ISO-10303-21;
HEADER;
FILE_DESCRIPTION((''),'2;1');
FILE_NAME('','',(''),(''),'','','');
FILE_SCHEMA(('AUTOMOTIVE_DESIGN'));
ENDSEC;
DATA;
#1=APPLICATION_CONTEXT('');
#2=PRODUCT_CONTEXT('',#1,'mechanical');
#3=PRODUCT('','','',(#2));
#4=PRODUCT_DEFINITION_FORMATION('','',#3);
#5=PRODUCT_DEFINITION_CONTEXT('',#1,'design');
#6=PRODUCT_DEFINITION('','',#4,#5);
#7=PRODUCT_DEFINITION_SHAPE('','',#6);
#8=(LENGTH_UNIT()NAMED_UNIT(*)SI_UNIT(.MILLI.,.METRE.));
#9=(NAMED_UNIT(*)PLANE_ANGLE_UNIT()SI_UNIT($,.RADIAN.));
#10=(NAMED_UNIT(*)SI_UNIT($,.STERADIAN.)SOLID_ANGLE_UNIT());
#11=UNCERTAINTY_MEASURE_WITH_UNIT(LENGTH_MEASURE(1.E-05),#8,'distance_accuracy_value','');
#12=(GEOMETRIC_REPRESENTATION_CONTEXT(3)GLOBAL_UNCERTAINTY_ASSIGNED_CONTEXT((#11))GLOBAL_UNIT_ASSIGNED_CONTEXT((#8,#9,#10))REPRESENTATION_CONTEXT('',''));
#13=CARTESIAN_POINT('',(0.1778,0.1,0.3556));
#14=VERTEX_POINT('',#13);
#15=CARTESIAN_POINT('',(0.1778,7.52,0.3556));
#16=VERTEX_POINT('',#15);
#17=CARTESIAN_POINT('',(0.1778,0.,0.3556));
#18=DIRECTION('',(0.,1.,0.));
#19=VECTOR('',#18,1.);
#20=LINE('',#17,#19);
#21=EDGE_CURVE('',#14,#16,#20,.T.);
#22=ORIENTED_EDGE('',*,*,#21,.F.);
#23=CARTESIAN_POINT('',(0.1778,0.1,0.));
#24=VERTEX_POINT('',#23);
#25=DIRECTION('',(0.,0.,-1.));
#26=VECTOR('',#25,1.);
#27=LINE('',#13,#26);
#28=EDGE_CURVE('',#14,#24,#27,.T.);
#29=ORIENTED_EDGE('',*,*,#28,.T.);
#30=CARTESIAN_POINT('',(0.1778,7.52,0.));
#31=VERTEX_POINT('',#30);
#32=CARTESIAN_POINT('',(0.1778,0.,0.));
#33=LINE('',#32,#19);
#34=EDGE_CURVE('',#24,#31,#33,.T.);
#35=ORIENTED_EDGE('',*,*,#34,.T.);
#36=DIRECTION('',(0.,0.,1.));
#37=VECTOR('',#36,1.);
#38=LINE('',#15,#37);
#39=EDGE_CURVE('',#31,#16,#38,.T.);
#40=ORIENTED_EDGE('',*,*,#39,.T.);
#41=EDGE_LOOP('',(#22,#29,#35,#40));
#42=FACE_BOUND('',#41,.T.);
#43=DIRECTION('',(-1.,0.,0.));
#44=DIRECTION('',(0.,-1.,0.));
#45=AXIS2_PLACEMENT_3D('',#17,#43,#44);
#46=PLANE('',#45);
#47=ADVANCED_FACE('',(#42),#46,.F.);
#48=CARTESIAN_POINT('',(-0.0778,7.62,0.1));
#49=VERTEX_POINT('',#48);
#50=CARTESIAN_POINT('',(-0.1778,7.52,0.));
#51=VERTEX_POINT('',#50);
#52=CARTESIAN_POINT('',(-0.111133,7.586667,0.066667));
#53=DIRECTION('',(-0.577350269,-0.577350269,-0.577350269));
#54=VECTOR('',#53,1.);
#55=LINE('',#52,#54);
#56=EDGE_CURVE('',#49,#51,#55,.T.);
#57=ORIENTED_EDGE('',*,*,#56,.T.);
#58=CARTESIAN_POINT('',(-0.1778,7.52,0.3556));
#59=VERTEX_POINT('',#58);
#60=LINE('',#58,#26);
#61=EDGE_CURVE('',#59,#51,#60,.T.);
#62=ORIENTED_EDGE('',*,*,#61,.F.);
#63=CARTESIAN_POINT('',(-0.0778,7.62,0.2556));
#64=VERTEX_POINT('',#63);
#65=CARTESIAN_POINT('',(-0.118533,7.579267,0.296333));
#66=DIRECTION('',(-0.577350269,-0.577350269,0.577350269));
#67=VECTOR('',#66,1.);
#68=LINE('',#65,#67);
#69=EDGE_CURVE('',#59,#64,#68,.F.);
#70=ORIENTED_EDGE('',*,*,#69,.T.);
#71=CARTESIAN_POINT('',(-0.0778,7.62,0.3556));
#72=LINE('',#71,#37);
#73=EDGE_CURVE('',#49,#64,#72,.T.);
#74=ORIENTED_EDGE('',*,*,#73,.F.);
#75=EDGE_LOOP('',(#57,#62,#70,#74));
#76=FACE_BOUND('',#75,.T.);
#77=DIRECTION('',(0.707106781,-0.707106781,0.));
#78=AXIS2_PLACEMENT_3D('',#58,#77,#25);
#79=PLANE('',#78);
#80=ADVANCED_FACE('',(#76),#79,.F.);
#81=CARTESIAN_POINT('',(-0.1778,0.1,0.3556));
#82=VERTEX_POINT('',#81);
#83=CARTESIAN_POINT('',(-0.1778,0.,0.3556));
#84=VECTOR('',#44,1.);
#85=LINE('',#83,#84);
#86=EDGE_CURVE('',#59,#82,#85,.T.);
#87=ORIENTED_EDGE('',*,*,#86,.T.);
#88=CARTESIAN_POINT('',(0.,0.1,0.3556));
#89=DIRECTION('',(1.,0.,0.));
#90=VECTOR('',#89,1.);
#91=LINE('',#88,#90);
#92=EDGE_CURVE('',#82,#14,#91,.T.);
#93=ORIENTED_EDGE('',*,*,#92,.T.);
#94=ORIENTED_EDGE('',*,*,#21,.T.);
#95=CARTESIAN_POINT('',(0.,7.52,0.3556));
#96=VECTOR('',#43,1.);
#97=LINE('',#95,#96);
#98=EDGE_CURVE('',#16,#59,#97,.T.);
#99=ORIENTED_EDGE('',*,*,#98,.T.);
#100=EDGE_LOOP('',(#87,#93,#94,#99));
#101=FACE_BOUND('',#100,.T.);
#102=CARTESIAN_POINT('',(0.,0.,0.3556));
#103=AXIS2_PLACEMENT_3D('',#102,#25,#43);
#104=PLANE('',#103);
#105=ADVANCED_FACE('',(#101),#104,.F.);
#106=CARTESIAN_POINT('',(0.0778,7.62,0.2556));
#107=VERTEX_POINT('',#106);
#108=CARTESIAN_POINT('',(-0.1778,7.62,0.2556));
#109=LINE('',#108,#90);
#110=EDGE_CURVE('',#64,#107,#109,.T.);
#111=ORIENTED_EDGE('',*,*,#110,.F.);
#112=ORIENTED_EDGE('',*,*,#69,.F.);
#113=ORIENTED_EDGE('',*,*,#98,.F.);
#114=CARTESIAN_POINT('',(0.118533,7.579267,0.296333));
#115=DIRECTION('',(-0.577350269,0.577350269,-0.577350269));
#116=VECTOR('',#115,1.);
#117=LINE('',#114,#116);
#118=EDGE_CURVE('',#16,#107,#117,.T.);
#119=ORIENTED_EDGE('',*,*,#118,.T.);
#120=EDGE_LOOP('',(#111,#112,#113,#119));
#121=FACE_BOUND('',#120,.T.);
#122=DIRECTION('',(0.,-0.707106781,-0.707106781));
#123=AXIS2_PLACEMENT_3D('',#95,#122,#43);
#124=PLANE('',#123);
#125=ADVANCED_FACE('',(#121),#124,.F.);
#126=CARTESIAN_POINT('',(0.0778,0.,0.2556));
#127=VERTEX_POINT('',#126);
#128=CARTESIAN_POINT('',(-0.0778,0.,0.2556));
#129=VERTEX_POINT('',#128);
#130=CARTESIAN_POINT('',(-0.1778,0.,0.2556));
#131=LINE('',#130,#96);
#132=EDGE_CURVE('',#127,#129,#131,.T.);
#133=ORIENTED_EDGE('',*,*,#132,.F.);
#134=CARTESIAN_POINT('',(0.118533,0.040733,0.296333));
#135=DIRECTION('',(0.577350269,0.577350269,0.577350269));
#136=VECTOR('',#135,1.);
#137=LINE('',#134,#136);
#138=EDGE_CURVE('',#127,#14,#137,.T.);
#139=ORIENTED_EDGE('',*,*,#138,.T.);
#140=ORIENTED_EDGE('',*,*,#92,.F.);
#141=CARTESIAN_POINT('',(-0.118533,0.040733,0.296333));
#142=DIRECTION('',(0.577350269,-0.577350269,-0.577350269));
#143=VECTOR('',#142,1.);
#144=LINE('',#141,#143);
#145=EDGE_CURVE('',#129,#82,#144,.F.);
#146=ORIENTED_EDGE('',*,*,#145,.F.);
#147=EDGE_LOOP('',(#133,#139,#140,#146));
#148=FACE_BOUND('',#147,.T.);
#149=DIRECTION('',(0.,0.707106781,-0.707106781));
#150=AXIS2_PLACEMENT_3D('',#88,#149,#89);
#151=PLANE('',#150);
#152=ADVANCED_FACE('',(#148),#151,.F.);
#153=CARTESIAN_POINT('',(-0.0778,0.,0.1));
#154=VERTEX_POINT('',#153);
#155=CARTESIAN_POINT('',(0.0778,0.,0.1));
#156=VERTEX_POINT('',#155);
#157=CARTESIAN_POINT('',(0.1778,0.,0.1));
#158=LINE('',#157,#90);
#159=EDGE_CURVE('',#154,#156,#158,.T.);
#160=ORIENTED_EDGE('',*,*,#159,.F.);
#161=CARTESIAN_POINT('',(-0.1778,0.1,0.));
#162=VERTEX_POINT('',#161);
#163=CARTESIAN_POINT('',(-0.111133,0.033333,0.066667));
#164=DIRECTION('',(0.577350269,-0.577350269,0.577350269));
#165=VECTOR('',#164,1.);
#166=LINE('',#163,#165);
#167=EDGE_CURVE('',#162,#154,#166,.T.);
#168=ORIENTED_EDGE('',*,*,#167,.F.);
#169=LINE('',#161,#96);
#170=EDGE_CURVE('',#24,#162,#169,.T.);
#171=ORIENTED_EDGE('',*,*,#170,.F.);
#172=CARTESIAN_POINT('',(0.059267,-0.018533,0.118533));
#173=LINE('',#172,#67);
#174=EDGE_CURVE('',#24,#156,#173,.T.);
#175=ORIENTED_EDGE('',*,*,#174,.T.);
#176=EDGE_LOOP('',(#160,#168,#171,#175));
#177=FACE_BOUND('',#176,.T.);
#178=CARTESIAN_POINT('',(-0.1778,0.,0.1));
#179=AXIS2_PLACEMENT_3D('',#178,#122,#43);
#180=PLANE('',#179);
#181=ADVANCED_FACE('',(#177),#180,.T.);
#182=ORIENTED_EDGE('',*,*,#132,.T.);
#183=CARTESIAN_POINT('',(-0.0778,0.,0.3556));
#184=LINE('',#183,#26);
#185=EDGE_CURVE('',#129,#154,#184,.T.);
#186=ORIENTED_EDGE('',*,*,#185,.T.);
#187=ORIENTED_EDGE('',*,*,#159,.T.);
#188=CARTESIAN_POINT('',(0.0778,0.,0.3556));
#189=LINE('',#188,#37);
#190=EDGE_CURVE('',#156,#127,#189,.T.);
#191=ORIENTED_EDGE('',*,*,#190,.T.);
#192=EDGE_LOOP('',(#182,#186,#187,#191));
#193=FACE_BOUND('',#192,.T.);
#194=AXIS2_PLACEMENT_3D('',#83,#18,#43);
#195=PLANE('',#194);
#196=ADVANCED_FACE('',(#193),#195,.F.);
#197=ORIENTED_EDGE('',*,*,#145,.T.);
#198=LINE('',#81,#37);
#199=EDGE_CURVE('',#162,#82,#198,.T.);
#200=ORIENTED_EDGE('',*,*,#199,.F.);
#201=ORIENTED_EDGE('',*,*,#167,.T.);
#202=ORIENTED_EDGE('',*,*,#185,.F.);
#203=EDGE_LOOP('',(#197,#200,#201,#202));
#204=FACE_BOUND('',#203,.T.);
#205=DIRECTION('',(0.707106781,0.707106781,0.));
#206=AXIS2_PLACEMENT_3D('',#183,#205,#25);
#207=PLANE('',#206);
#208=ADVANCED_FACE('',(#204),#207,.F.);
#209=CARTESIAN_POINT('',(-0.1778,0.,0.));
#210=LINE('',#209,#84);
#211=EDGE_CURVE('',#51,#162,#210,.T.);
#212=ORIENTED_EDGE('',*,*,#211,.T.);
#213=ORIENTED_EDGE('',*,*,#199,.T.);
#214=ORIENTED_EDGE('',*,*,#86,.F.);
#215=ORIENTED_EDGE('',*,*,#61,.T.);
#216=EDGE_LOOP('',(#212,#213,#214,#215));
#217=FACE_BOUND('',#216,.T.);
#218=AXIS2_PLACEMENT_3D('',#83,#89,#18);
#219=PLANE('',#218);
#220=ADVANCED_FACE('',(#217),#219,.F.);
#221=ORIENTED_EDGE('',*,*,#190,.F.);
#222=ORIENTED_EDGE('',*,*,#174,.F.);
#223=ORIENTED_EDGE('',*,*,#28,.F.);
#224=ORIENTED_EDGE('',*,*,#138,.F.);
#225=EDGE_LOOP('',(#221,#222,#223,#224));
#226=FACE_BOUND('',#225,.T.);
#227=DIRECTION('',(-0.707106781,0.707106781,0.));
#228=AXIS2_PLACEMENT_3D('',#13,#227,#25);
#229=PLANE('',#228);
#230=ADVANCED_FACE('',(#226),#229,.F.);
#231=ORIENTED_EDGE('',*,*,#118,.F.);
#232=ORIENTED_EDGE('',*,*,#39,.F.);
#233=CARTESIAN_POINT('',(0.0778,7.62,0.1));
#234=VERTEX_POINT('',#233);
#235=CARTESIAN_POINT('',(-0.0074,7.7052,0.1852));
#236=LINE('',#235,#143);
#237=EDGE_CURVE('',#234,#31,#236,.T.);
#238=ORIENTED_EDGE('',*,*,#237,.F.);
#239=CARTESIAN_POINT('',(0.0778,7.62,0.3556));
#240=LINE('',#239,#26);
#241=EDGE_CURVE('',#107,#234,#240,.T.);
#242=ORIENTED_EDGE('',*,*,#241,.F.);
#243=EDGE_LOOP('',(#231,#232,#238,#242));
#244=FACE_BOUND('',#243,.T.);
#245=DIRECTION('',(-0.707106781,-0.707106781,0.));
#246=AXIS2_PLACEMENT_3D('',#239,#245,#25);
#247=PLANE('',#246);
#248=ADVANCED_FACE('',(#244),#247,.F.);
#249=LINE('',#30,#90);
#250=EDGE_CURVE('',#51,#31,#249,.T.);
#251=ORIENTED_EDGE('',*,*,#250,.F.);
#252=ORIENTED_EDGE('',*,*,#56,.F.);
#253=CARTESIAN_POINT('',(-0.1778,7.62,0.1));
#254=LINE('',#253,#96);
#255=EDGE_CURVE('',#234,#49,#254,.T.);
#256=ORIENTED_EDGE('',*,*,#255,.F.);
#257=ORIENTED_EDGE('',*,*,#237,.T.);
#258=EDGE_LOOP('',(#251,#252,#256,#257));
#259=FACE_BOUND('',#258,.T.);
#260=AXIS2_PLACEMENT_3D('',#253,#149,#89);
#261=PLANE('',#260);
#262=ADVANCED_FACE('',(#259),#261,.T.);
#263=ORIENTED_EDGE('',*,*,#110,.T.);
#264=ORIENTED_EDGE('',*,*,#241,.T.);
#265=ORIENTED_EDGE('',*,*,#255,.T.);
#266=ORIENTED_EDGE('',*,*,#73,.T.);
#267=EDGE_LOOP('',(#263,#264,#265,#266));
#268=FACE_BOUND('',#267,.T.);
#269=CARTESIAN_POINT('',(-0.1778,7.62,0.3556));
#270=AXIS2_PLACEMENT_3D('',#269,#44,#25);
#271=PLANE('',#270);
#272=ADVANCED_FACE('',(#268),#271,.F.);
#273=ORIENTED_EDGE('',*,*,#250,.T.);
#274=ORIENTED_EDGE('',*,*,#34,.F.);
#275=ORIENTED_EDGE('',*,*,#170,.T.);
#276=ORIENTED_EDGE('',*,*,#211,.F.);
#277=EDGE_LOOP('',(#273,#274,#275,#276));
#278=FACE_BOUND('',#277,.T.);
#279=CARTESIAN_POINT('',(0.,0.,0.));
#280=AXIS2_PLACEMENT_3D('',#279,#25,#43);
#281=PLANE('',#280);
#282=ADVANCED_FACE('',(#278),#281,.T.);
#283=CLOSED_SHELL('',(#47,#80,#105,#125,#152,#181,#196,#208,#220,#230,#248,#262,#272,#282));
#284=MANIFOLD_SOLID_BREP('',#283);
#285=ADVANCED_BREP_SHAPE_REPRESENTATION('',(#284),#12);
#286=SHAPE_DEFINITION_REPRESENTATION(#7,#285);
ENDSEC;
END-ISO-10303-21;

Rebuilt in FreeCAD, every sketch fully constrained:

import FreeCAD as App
import Part
import Sketcher

V = App.Vector
Q = App.Units.Quantity


def edges_at(feature, points):
    """Names of the edges that pass closest to the given points."""
    edges = feature.Shape.Edges
    near = lambda p: min(range(len(edges)), key=lambda i: edges[i].distToShape(Part.Vertex(*p))[0])
    return sorted({f"Edge{near(p) + 1}" for p in points})


def add_polygon(sketch, points):
    """Adds a closed chain of lines whose ends are joined by coincident constraints."""
    first, n = sketch.GeometryCount, len(points)
    for a, b in zip(points, points[1:] + points[:1]):
        sketch.addGeometry(Part.LineSegment(App.Vector(*a, 0), App.Vector(*b, 0)), False)
    for i in range(n):
        sketch.addConstraint(Sketcher.Constraint("Coincident", first + i, 2, first + (i + 1) % n, 1))

doc = App.newDocument("Part")
params = doc.addObject("Spreadsheet::Sheet", "Params")
for row, (alias, value) in enumerate([
    ("sketch1_height", "0.3 in"),
    ("sketch1_width", "0.014 in"),
    ("pad1_length", "0.014 in"),
    ("chamfer_size", "0.1 mm"),
], start=1):
    params.set(f"A{row}", alias)
    params.set(f"B{row}", "=" + value)
    params.setAlias(f"B{row}", alias)

body = doc.addObject("PartDesign::Body", "Body")

sketch1 = body.newObject("Sketcher::SketchObject", "Sketch")
sketch1.AttachmentSupport = (doc.getObject("XY_Plane"), [""])
sketch1.MapMode = "FlatFace"
add_polygon(sketch1, [(-0.1778, 7.62), (-0.1778, 0), (0.1778, 0), (0.1778, 7.62)])
sketch1.addConstraint(Sketcher.Constraint("Vertical", 0))
sketch1.addConstraint(Sketcher.Constraint("Horizontal", 1))
sketch1.addConstraint(Sketcher.Constraint("Vertical", 2))
sketch1.addConstraint(Sketcher.Constraint("Horizontal", 3))
sketch1.addConstraint(Sketcher.Constraint("Symmetric", 0, 2, 1, 2, -1, 1))
sketch1.addConstraint(Sketcher.Constraint("DistanceY", 0, 2, 0, 1, Q("0.3 in")))
sketch1.addConstraint(Sketcher.Constraint("DistanceX", 1, 1, 1, 2, Q("0.014 in")))
sketch1.setExpression("Constraints[9]", "Params.sketch1_height")
sketch1.setExpression("Constraints[10]", "Params.sketch1_width")
pad1 = body.newObject("PartDesign::Pad", "Pad")
pad1.Profile = sketch1
pad1.setExpression("Length", "Params.pad1_length")
doc.recompute()

chamfer = body.newObject("PartDesign::Chamfer", "Chamfer")
chamfer.Base = (pad1, edges_at(pad1, [
    (0, 7.62, 0.356),
    (0, 7.62, 0),
    (0, 0, 0),
    (0, 0, 0.356),
    (-0.178, 7.62, 0.178),
    (0.178, 7.62, 0.178),
    (0.178, 0, 0.178),
    (-0.178, 0, 0.178),
]))
chamfer.setExpression("Size", "Params.chamfer_size")

doc.recompute()
